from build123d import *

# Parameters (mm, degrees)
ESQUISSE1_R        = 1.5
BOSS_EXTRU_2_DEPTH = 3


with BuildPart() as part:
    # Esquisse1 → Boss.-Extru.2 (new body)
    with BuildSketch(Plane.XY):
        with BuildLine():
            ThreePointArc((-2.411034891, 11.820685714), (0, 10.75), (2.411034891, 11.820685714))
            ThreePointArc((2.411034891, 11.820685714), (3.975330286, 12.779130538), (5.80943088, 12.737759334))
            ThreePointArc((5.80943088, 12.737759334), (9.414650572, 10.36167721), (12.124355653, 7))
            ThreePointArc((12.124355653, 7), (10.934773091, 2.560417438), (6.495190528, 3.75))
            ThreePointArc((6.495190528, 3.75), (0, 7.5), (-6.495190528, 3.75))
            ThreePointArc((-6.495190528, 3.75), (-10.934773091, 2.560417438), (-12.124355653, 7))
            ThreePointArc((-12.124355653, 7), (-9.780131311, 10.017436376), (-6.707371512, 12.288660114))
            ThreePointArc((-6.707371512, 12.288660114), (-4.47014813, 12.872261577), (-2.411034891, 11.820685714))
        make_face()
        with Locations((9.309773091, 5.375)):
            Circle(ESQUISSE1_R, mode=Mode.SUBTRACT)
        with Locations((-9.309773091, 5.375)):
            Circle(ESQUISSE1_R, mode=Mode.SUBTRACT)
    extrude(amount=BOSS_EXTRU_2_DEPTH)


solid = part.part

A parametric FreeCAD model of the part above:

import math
import FreeCAD as App
import Part
import Sketcher

doc = App.newDocument("Part")
body = doc.addObject("PartDesign::Body", "Body")

sketch1 = body.newObject("Sketcher::SketchObject", "Sketch")
sketch1.AttachmentSupport = (doc.getObject("XY_Plane"), [""])
sketch1.MapMode = "FlatFace"
sketch1.addGeometry([
    Part.ArcOfCircle(Part.Circle(App.Vector(0, 14, 0), App.Vector(0, 0, 1), 3.3), math.radians(-138), math.radians(-42)),
    Part.ArcOfCircle(Part.Circle(App.Vector(-4.8, 9.6, 0), App.Vector(0, 0, 1), 3.2), math.radians(42), math.radians(125)),
    Part.ArcOfCircle(Part.Circle(App.Vector(0, 0, 0), App.Vector(0, 0, 1), 14), math.radians(119), math.radians(150)),
    Part.ArcOfCircle(Part.Circle(App.Vector(-9.3, 5.4, 0), App.Vector(0, 0, 1), 3.2), math.radians(150), math.radians(330)),
    Part.ArcOfCircle(Part.Circle(App.Vector(0, 0, 0), App.Vector(0, 0, 1), 7.5), math.radians(30), math.radians(150)),
    Part.ArcOfCircle(Part.Circle(App.Vector(9.3, 5.4, 0), App.Vector(0, 0, 1), 3.2), math.radians(-150), math.radians(30)),
    Part.ArcOfCircle(Part.Circle(App.Vector(0, 0, 0), App.Vector(0, 0, 1), 14), math.radians(30), math.radians(65)),
    Part.ArcOfCircle(Part.Circle(App.Vector(4.8, 9.6, 0), App.Vector(0, 0, 1), 3.2), math.radians(72), math.radians(138)),
    Part.Circle(App.Vector(9.3, 5.4, 0), App.Vector(0, 0, 1), 1.5),
    Part.Circle(App.Vector(-9.3, 5.4, 0), App.Vector(0, 0, 1), 1.5),
], False)
sketch1.addConstraint([
    Sketcher.Constraint("Tangent", 0, 1, 1, 1),
    Sketcher.Constraint("Coincident", 1, 2, 2, 1),
    Sketcher.Constraint("Tangent", 2, 2, 3, 1),
    Sketcher.Constraint("Tangent", 3, 2, 4, 2),
    Sketcher.Constraint("Tangent", 4, 1, 5, 1),
    Sketcher.Constraint("Tangent", 5, 2, 6, 1),
    Sketcher.Constraint("Coincident", 6, 2, 7, 1),
    Sketcher.Constraint("Tangent", 7, 2, 0, 2),
    Sketcher.Constraint("Coincident", 2, 3, -1, 1),
    Sketcher.Constraint("Coincident", 4, 3, -1, 1),
    Sketcher.Constraint("Coincident", 6, 3, -1, 1),
    Sketcher.Constraint("Coincident", 8, 3, 5, 3),
    Sketcher.Constraint("Coincident", 9, 3, 3, 3),
    Sketcher.Constraint("Equal", 0, 1),
    Sketcher.Constraint("Equal", 1, 3),
    Sketcher.Constraint("Equal", 3, 5),
    Sketcher.Constraint("Equal", 5, 7),
    Sketcher.Constraint("Equal", 8, 9),
    Sketcher.Constraint("Symmetric", 1, 3, 7, 3, -2),
    Sketcher.Constraint("Horizontal", 3, 3, 5, 3),
    Sketcher.Constraint("Diameter", 8, 3.0),
    Sketcher.Constraint("Radius", 2, 14.0),
    Sketcher.Constraint("Radius", 4, 7.5),
    Sketcher.Constraint("DistanceY", -1, 1, 0, 3, 14.0),
    Sketcher.Constraint("DistanceY", -1, 1, 2, 2, 7.0),
    Sketcher.Constraint("DistanceX", 1, 2, 1, 3, 1.885302),
])
pad1 = body.newObject("PartDesign::Pad", "Pad")
pad1.Profile = sketch1
pad1.Length = 3

doc.recompute()
